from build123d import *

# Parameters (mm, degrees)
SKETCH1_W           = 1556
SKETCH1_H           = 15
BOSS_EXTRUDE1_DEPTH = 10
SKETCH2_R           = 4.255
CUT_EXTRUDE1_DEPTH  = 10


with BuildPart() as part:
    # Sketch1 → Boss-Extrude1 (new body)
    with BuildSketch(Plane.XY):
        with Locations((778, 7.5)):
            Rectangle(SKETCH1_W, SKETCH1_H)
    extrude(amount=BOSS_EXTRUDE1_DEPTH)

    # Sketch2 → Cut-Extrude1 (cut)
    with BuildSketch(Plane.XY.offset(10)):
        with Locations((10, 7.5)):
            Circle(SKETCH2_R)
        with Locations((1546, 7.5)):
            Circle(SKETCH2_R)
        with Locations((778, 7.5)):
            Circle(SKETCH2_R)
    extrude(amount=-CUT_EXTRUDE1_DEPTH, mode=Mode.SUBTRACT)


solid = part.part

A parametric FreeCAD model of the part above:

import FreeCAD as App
import Part
import Sketcher
from FreeCAD import Vector

doc = App.newDocument("Part")
params = doc.addObject("Spreadsheet::Sheet", "Params")
for row, (alias, value) in enumerate([
    ("sketch1_width", "1556 mm"),
    ("sketch1_height", "15 mm"),
    ("pad1_length", "10 mm"),
    ("sketch2_diameter", "8.51 mm"),
    ("pocket1_length", "10 mm"),
], start=1):
    params.set(f"A{row}", alias)
    params.set(f"B{row}", "=" + value)
    params.setAlias(f"B{row}", alias)

body = doc.addObject("PartDesign::Body", "Body")

# Sketch on XY plane
sketch1 = body.newObject("Sketcher::SketchObject", "Sketch")
sketch1.AttachmentSupport = (doc.getObject("XY_Plane"), [""])
sketch1.MapMode = "FlatFace"
sketch1.addGeometry([
    Part.LineSegment(Vector(0, 15, 0), Vector(0, 0, 0)),
    Part.LineSegment(Vector(0, 0, 0), Vector(1556, 0, 0)),
    Part.LineSegment(Vector(1556, 0, 0), Vector(1556, 15, 0)),
    Part.LineSegment(Vector(1556, 15, 0), Vector(0, 15, 0)),
], False)
sketch1.addConstraint([
    Sketcher.Constraint("Coincident", 0, 2, 1, 1),
    Sketcher.Constraint("Coincident", 1, 2, 2, 1),
    Sketcher.Constraint("Coincident", 2, 2, 3, 1),
    Sketcher.Constraint("Coincident", 3, 2, 0, 1),
    Sketcher.Constraint("Vertical", 0),
    Sketcher.Constraint("Horizontal", 1),
    Sketcher.Constraint("Vertical", 2),
    Sketcher.Constraint("Horizontal", 3),
    Sketcher.Constraint("Coincident", 0, 2, -1, 1),
    Sketcher.Constraint("DistanceX", 1, 1, 1, 2, 1556.0),
    Sketcher.Constraint("DistanceY", 0, 2, 0, 1, 15.0),
])
sketch1.setExpression("Constraints[9]", "Params.sketch1_width")
sketch1.setExpression("Constraints[10]", "Params.sketch1_height")
pad1 = body.newObject("PartDesign::Pad", "Pad")
pad1.Profile = sketch1
pad1.setExpression("Length", "Params.pad1_length")

# Sketch on XY plane
sketch2 = body.newObject("Sketcher::SketchObject", "Sketch001")
sketch2.AttachmentSupport = (doc.getObject("XY_Plane"), [""])
sketch2.MapMode = "FlatFace"
sketch2.AttachmentOffset = App.Placement(Vector(0, 0, 10), App.Rotation())
sketch2.addGeometry([
    Part.Circle(Vector(10, 7.5, 0), Vector(0, 0, 1), 4.3),
    Part.Circle(Vector(1546, 7.5, 0), Vector(0, 0, 1), 4.3),
    Part.Circle(Vector(778, 7.5, 0), Vector(0, 0, 1), 4.3),
], False)
sketch2.addConstraint([
    Sketcher.Constraint("Equal", 0, 1),
    Sketcher.Constraint("Equal", 1, 2),
    Sketcher.Constraint("Horizontal", 0, 3, 1, 3),
    Sketcher.Constraint("Horizontal", 1, 3, 2, 3),
    Sketcher.Constraint("Diameter", 0, 8.51),
    Sketcher.Constraint("DistanceX", -1, 1, 0, 3, 10.0),
    Sketcher.Constraint("DistanceX", -1, 1, 1, 3, 1546.0),
    Sketcher.Constraint("DistanceX", -1, 1, 2, 3, 778.0),
    Sketcher.Constraint("DistanceY", -1, 1, 0, 3, 7.5),
])
sketch2.setExpression("Constraints[4]", "Params.sketch2_diameter")
pocket1 = body.newObject("PartDesign::Pocket", "Pocket")
pocket1.Profile = sketch2
pocket1.setExpression("Length", "Params.pocket1_length")

doc.recompute()
